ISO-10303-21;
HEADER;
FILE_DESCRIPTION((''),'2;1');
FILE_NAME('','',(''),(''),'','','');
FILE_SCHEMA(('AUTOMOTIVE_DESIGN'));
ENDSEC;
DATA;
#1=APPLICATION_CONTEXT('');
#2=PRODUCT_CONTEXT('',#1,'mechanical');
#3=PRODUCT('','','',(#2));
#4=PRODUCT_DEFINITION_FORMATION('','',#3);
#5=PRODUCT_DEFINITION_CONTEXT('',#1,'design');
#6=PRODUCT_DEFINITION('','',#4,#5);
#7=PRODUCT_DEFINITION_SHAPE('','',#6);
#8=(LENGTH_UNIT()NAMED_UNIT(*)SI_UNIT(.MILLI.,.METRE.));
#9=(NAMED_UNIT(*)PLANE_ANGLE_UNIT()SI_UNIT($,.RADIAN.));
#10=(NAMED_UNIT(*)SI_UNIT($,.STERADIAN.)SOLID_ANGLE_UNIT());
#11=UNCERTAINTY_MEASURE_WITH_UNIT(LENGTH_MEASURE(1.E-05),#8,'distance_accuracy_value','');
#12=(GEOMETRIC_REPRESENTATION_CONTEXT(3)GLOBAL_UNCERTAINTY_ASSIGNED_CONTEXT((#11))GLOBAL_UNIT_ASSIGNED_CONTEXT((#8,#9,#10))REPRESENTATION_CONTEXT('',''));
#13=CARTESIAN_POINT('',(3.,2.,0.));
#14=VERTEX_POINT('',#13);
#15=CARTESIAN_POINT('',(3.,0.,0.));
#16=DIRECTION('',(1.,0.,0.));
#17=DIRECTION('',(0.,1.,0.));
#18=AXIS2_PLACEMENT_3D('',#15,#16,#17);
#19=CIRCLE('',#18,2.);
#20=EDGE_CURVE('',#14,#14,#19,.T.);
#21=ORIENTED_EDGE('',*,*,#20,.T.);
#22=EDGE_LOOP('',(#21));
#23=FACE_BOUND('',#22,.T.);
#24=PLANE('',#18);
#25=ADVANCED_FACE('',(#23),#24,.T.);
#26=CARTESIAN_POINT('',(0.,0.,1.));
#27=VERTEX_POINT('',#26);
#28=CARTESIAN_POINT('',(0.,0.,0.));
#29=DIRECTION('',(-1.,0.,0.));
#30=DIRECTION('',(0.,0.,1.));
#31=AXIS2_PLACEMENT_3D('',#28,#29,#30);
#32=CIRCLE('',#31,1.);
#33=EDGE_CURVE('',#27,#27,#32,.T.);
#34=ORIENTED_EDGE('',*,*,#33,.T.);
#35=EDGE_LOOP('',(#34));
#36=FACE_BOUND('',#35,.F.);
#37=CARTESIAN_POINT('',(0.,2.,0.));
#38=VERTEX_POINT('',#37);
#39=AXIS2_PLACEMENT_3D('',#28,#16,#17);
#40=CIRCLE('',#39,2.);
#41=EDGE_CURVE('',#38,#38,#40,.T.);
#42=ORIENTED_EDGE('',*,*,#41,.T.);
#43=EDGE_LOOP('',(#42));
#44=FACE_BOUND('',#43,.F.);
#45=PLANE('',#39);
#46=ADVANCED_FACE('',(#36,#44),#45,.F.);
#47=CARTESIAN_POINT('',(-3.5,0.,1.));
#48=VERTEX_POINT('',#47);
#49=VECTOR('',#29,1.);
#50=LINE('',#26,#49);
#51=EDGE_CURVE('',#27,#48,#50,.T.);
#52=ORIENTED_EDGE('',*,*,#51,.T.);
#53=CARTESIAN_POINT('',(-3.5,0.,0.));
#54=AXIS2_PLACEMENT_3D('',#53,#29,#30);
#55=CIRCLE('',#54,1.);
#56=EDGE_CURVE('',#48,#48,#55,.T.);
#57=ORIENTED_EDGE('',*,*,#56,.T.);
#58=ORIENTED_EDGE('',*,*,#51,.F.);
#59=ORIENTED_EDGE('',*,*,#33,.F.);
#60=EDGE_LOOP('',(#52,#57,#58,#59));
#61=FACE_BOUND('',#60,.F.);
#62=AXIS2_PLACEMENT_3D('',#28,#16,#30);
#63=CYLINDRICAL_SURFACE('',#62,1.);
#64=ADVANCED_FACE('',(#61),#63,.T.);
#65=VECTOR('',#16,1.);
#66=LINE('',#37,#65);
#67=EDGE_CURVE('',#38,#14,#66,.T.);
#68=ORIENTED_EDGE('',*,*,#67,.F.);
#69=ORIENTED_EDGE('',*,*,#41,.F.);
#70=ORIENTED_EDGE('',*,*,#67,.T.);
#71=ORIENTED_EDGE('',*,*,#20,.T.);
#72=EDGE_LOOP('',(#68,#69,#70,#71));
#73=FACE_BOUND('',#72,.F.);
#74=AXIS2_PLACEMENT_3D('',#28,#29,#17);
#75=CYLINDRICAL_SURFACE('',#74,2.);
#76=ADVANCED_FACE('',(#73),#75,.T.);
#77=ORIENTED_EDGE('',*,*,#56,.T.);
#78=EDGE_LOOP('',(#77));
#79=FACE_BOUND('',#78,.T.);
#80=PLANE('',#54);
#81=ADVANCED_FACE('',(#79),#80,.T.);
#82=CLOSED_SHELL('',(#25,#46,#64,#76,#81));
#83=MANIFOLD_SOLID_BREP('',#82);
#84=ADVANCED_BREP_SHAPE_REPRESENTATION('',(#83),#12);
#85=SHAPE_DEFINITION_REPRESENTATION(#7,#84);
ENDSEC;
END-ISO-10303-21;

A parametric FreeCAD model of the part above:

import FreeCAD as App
import Part
import Sketcher

doc = App.newDocument("Part")
params = doc.addObject("Spreadsheet::Sheet", "Params")
for row, (alias, value) in enumerate([
    ("sketch1_diameter", "4 mm"),
    ("pad1_length", "3 mm"),
    ("sketch2_diameter", "2 mm"),
    ("pad2_length", "3.5 mm"),
], start=1):
    params.set(f"A{row}", alias)
    params.set(f"B{row}", "=" + value)
    params.setAlias(f"B{row}", alias)

body = doc.addObject("PartDesign::Body", "Body")

# Sketch on YZ plane
sketch1 = body.newObject("Sketcher::SketchObject", "Sketch")
sketch1.AttachmentSupport = (doc.getObject("YZ_Plane"), [""])
sketch1.MapMode = "FlatFace"
sketch1.addGeometry(Part.Circle(App.Vector(0, 0, 0), App.Vector(0, 0, 1), 2), False)
sketch1.addConstraint(Sketcher.Constraint("Coincident", 0, 3, -1, 1))
sketch1.addConstraint(Sketcher.Constraint("Diameter", 0, 4.0))
sketch1.setExpression("Constraints[1]", "Params.sketch1_diameter")
pad1 = body.newObject("PartDesign::Pad", "Pad")
pad1.Profile = sketch1
pad1.setExpression("Length", "Params.pad1_length")

# Sketch on YZ plane
sketch2 = body.newObject("Sketcher::SketchObject", "Sketch001")
sketch2.AttachmentSupport = (doc.getObject("YZ_Plane"), [""])
sketch2.MapMode = "FlatFace"
sketch2.addGeometry(Part.Circle(App.Vector(0, 0, 0), App.Vector(0, 0, 1), 1), False)
sketch2.addConstraint(Sketcher.Constraint("Coincident", 0, 3, -1, 1))
sketch2.addConstraint(Sketcher.Constraint("Diameter", 0, 2.0))
sketch2.setExpression("Constraints[1]", "Params.sketch2_diameter")
pad2 = body.newObject("PartDesign::Pad", "Pad001")
pad2.Profile = sketch2
pad2.setExpression("Length", "Params.pad2_length")
pad2.Reversed = True

doc.recompute()
